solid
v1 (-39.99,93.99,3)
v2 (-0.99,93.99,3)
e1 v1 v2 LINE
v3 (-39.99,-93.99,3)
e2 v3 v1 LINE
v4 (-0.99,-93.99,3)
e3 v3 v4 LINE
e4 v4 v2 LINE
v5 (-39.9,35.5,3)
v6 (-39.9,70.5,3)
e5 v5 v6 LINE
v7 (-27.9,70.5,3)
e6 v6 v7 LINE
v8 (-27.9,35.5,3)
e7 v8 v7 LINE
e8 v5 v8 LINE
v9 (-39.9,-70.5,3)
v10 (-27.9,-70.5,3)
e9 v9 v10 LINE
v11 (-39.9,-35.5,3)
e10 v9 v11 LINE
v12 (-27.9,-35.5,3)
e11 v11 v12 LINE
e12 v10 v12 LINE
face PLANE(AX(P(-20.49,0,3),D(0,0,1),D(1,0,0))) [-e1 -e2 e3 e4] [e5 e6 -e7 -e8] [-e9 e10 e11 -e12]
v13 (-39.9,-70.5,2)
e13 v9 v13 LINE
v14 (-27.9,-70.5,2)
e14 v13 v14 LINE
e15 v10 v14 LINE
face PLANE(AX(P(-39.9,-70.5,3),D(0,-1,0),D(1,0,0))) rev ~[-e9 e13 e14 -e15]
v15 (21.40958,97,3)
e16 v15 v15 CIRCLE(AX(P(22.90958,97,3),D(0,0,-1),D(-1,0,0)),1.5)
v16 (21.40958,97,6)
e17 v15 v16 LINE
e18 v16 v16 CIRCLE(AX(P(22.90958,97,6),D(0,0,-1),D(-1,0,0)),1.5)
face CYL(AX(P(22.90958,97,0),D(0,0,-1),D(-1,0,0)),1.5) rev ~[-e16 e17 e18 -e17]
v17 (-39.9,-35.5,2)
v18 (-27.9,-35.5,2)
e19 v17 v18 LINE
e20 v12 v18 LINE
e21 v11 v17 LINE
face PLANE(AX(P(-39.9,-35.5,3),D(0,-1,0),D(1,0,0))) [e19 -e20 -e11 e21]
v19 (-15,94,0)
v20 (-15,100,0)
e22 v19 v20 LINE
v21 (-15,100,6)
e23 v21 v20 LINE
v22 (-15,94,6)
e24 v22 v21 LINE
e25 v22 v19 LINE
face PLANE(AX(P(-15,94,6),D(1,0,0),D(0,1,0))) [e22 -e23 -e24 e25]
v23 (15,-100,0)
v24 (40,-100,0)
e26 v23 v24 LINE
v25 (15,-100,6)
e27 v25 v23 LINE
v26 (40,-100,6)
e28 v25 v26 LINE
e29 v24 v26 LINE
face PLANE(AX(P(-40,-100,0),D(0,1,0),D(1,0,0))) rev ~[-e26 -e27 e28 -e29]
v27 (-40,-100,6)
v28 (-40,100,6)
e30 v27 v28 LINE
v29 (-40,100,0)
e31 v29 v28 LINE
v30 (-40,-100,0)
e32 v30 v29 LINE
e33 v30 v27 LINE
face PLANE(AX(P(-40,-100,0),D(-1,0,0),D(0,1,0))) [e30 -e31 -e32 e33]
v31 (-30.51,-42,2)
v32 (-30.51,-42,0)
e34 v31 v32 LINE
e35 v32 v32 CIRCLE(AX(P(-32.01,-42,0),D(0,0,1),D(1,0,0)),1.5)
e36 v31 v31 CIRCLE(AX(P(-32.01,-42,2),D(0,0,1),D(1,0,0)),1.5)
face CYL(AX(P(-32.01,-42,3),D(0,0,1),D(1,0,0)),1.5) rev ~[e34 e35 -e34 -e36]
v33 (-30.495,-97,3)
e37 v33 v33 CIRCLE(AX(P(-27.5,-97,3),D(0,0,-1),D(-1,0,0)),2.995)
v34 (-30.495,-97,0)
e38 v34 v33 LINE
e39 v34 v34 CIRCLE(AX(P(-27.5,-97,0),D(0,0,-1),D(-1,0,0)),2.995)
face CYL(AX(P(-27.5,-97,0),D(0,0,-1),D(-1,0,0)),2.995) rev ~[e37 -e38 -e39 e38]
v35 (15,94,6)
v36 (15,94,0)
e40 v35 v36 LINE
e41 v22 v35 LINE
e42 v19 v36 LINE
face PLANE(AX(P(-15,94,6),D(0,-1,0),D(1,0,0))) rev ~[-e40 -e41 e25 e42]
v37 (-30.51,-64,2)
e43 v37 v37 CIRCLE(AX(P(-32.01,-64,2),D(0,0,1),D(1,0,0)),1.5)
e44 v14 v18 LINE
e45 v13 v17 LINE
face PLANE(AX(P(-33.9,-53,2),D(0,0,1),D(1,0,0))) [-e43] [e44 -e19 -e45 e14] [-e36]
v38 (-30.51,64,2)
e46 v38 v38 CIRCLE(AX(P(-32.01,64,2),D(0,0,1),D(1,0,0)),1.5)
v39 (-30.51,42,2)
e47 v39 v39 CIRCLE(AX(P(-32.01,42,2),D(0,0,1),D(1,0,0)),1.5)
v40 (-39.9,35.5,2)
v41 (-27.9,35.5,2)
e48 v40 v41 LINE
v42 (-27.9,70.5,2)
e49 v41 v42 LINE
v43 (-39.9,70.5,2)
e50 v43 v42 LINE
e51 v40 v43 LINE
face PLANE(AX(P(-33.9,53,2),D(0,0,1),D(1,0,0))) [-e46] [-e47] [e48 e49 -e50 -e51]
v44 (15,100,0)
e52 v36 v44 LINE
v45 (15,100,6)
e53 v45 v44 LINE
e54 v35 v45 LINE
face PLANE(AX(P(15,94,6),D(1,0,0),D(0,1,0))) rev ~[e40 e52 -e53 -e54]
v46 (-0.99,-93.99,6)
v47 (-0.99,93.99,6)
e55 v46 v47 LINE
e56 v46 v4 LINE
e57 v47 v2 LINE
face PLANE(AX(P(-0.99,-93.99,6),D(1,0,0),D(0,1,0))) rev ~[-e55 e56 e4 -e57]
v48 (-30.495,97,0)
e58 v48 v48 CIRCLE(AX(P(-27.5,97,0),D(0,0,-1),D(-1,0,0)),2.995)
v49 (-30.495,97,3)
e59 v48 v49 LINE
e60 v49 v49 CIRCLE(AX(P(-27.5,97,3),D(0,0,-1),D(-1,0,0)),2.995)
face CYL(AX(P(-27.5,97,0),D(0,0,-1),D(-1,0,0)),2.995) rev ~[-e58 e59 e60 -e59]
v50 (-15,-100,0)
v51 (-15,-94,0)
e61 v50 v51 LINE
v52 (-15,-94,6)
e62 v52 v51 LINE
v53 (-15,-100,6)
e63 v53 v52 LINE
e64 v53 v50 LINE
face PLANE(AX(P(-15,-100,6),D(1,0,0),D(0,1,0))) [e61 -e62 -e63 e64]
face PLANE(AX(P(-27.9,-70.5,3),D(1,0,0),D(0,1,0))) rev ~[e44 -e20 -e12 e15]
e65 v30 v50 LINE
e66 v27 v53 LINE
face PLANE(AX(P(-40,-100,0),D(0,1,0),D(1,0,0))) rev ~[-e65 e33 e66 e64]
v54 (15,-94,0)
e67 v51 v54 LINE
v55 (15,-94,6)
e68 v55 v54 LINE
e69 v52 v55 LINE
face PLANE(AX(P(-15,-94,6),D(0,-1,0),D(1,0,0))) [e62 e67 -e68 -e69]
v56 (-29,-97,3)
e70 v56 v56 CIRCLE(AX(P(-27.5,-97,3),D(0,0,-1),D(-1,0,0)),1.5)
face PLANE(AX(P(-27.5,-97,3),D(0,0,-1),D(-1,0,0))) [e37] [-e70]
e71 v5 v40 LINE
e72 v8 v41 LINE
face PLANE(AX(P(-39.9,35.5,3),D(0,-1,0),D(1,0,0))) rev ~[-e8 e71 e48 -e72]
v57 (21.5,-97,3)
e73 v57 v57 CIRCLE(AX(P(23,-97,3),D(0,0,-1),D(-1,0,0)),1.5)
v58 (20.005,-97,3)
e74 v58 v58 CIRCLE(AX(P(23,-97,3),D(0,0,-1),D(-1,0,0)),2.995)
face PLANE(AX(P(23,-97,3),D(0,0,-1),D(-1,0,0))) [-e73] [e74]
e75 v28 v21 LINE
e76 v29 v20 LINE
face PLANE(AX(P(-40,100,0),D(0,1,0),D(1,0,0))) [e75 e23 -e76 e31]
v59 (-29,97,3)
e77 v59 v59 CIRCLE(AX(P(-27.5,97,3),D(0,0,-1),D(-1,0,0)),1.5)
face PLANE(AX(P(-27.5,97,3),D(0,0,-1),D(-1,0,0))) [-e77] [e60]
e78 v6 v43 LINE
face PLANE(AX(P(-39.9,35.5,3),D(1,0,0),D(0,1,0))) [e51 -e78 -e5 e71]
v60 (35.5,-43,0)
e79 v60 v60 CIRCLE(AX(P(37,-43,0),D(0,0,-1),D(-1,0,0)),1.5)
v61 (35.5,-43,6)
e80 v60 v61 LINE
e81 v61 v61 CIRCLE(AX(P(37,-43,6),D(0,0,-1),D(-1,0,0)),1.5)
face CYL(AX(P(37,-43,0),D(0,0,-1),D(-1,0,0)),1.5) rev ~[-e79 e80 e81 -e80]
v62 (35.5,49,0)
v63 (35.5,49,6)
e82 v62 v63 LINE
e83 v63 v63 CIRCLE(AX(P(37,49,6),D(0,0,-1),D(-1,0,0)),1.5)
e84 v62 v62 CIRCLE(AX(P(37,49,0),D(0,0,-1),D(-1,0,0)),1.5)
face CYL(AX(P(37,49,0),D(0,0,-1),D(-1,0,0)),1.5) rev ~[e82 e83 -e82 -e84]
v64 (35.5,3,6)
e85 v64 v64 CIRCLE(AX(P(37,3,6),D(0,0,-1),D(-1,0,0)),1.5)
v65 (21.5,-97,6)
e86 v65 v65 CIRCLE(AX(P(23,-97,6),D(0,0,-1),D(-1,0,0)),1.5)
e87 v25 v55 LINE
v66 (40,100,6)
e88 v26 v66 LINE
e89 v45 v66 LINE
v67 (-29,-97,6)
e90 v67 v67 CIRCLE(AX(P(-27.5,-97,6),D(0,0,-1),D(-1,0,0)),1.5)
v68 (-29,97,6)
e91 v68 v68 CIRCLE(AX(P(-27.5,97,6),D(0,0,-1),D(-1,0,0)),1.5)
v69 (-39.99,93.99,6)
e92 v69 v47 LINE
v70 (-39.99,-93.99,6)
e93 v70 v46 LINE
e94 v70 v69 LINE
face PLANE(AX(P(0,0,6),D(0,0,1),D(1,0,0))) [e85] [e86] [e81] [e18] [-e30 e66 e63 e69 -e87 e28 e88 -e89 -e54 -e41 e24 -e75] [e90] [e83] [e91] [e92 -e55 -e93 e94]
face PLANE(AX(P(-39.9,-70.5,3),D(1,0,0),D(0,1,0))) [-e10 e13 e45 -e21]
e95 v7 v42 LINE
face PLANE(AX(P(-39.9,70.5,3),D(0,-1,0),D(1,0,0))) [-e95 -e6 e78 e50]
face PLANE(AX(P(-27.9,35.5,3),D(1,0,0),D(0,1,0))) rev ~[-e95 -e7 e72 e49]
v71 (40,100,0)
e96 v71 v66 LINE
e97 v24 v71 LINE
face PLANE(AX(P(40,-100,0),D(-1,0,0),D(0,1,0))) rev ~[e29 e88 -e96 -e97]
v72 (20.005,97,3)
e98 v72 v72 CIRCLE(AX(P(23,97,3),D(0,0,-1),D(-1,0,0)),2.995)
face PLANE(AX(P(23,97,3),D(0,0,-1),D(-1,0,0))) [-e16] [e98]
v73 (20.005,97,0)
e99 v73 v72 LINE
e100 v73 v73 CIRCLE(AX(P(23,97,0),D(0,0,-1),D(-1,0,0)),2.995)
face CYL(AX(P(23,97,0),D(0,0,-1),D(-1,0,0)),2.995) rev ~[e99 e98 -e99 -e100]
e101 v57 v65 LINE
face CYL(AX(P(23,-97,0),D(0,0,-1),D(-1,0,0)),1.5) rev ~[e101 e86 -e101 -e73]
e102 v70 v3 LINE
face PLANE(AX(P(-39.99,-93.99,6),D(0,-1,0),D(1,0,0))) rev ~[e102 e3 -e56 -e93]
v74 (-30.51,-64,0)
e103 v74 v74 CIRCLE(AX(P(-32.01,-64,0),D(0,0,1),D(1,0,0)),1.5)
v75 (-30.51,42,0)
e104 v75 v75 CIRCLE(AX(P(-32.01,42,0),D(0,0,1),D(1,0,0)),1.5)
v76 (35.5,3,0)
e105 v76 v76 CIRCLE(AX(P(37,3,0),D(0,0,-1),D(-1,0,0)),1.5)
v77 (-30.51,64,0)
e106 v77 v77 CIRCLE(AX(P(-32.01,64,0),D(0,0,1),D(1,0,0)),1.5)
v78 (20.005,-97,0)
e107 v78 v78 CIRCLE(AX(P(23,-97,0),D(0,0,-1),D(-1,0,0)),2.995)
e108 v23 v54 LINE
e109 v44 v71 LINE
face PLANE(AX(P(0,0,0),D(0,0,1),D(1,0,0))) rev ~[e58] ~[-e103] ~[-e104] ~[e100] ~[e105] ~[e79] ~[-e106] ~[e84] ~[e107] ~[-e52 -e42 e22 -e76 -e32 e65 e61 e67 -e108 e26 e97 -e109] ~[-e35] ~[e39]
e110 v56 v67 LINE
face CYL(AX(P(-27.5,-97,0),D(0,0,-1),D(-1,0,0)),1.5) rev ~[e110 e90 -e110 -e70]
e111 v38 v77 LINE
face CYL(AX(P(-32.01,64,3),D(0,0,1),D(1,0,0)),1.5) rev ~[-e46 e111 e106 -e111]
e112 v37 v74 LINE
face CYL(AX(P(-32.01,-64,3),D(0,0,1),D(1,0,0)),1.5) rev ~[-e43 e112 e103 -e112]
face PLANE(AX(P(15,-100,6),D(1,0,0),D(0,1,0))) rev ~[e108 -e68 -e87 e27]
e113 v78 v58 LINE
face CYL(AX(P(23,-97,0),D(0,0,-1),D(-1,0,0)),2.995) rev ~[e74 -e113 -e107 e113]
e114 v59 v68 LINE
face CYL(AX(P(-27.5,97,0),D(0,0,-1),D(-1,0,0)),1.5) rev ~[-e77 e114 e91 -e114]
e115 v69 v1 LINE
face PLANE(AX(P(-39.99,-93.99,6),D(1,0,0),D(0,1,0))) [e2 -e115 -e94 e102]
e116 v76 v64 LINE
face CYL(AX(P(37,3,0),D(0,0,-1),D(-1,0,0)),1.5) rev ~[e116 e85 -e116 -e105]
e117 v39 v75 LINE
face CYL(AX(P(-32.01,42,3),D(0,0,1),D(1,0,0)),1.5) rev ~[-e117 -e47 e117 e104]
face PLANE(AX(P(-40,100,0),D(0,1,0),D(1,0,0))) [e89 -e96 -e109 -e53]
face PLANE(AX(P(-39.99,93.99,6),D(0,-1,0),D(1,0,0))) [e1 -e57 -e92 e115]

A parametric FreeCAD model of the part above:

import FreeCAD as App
import Part
import Sketcher
Q = App.Units.Quantity


def add_polygon(sketch, points):
    """Adds a closed chain of lines whose ends are joined by coincident constraints."""
    first, n = sketch.GeometryCount, len(points)
    for a, b in zip(points, points[1:] + points[:1]):
        sketch.addGeometry(Part.LineSegment(App.Vector(*a, 0), App.Vector(*b, 0)), False)
    for i in range(n):
        sketch.addConstraint(Sketcher.Constraint("Coincident", first + i, 2, first + (i + 1) % n, 1))

doc = App.newDocument("Part")
params = doc.addObject("Spreadsheet::Sheet", "Params")
for row, (alias, value) in enumerate([
    ("sketch1_width", "80 mm"),
    ("sketch1_height", "200 mm"),
    ("pad1_length", "6 mm"),
    ("sketch2_width", "39 mm"),
    ("sketch2_height", "187.98 mm"),
    ("pocket1_length", "3 mm"),
    ("sketch3_width", "30 mm"),
    ("sketch3_height", "6 mm"),
    ("pocket2_length", "10 mm"),
    ("sketch4_diameter", "5.99 mm"),
    ("pocket3_length", "3 mm"),
    ("sketch5_diameter", "3 mm"),
    ("pocket4_length", "13 mm"),
    ("sketch6_diameter", "3 mm"),
    ("pocket5_length", "10 mm"),
    ("sketch7_diameter", "3 mm"),
    ("pocket6_length", "10 mm"),
    ("sketch8_width", "12 mm"),
    ("sketch8_height", "35 mm"),
    ("pocket7_length", "1 mm"),
], start=1):
    params.set(f"A{row}", alias)
    params.set(f"B{row}", "=" + value)
    params.setAlias(f"B{row}", alias)

body = doc.addObject("PartDesign::Body", "Body")

# Sketch on XY plane
sketch1 = doc.addObject("Sketcher::SketchObject", "Sketch")
body.addObject(sketch1)
sketch1.AttachmentSupport = (doc.XY_Plane, [""])
sketch1.MapMode = "FlatFace"
add_polygon(sketch1, [(-40, 100), (-40, -100), (40, -100), (40, 100)])  # lines 0-3
sketch1.addConstraint([
    Sketcher.Constraint("Vertical", 0),
    Sketcher.Constraint("Horizontal", 1),
    Sketcher.Constraint("Vertical", 2),
    Sketcher.Constraint("Horizontal", 3),
    Sketcher.Constraint("Symmetric", 0, 2, 2, 2, -1, 1),
    Sketcher.Constraint("DistanceX", 1, 1, 1, 2, Q("80 mm")),
    Sketcher.Constraint("DistanceY", 0, 2, 0, 1, Q("200 mm")),
])
sketch1.setExpression("Constraints[9]", "Params.sketch1_width")
sketch1.setExpression("Constraints[10]", "Params.sketch1_height")
pad1 = doc.addObject("PartDesign::Pad", "Pad")
body.addObject(pad1)
pad1.Profile = sketch1
pad1.setExpression("Length", "Params.pad1_length")

# Sketch on XY plane
sketch2 = doc.addObject("Sketcher::SketchObject", "Sketch001")
body.addObject(sketch2)
sketch2.AttachmentSupport = (doc.XY_Plane, [""])
sketch2.MapMode = "FlatFace"
sketch2.AttachmentOffset = App.Placement(App.Vector(0, 0, 6), App.Rotation())
add_polygon(sketch2, [(-40, 94), (-40, -94), (-1, -94), (-1, 94)])  # lines 0-3
sketch2.addConstraint([
    Sketcher.Constraint("Vertical", 0),
    Sketcher.Constraint("Horizontal", 1),
    Sketcher.Constraint("Vertical", 2),
    Sketcher.Constraint("Horizontal", 3),
    Sketcher.Constraint("DistanceX", 1, 1, 1, 2, Q("39 mm")),
    Sketcher.Constraint("DistanceY", 0, 2, 0, 1, Q("187.98 mm")),
    Sketcher.Constraint("DistanceX", 0, 2, -1, 1, Q("39.99 mm")),
    Sketcher.Constraint("DistanceY", 0, 2, -1, 1, Q("93.99 mm")),
])
sketch2.setExpression("Constraints[8]", "Params.sketch2_width")
sketch2.setExpression("Constraints[9]", "Params.sketch2_height")
pocket1 = doc.addObject("PartDesign::Pocket", "Pocket")
body.addObject(pocket1)
pocket1.Profile = sketch2
pocket1.setExpression("Length", "Params.pocket1_length")

# Sketch on XY plane
sketch3 = doc.addObject("Sketcher::SketchObject", "Sketch002")
body.addObject(sketch3)
sketch3.AttachmentSupport = (doc.XY_Plane, [""])
sketch3.MapMode = "FlatFace"
sketch3.AttachmentOffset = App.Placement(App.Vector(0, 0, 6), App.Rotation())
add_polygon(sketch3, [(-15, 100), (-15, 94), (15, 94), (15, 100)])  # lines 0-3
add_polygon(sketch3, [(-15, -94), (-15, -100), (15, -100), (15, -94)])  # lines 4-7
sketch3.addConstraint([
    Sketcher.Constraint("Vertical", 0),
    Sketcher.Constraint("Horizontal", 1),
    Sketcher.Constraint("Vertical", 2),
    Sketcher.Constraint("Horizontal", 3),
    Sketcher.Constraint("Vertical", 4),
    Sketcher.Constraint("Horizontal", 5),
    Sketcher.Constraint("Vertical", 6),
    Sketcher.Constraint("Horizontal", 7),
    Sketcher.Constraint("Symmetric", 2, 2, 4, 2, -1, 1),
    Sketcher.Constraint("Symmetric", 0, 2, 6, 2, -1, 1),
    Sketcher.Constraint("Vertical", 3, 2, 4, 2),
    Sketcher.Constraint("DistanceX", 1, 1, 1, 2, Q("30 mm")),
    Sketcher.Constraint("DistanceY", 0, 2, 0, 1, Q("6 mm")),
    Sketcher.Constraint("DistanceY", -1, 1, 0, 2, Q("94 mm")),
])
sketch3.setExpression("Constraints[19]", "Params.sketch3_width")
sketch3.setExpression("Constraints[20]", "Params.sketch3_height")
pocket2 = doc.addObject("PartDesign::Pocket", "Pocket001")
body.addObject(pocket2)
pocket2.Profile = sketch3
pocket2.setExpression("Length", "Params.pocket2_length")

# Sketch on XY plane
sketch4 = doc.addObject("Sketcher::SketchObject", "Sketch003")
body.addObject(sketch4)
sketch4.AttachmentSupport = (doc.XY_Plane, [""])
sketch4.MapMode = "FlatFace"
sketch4.addGeometry([
    Part.Circle(App.Vector(-27.5, -97, 0), App.Vector(0, 0, 1), 3),
    Part.Circle(App.Vector(23, -97, 0), App.Vector(0, 0, 1), 3),
    Part.Circle(App.Vector(-27.5, 97, 0), App.Vector(0, 0, 1), 3),
    Part.Circle(App.Vector(23, 97, 0), App.Vector(0, 0, 1), 3),
], False)
sketch4.addConstraint([
    Sketcher.Constraint("Equal", 0, 1),
    Sketcher.Constraint("Equal", 1, 2),
    Sketcher.Constraint("Equal", 2, 3),
    Sketcher.Constraint("Symmetric", 0, 3, 2, 3, -1),
    Sketcher.Constraint("Symmetric", 1, 3, 3, 3, -1),
    Sketcher.Constraint("Horizontal", 0, 3, 1, 3),
    Sketcher.Constraint("Diameter", 0, Q("5.99 mm")),
    Sketcher.Constraint("DistanceY", 0, 3, -1, 1, Q("97 mm")),
    Sketcher.Constraint("DistanceX", -1, 1, 1, 3, Q("23 mm")),
    Sketcher.Constraint("DistanceX", 0, 3, -1, 1, Q("27.5 mm")),
])
sketch4.setExpression("Constraints[6]", "Params.sketch4_diameter")
pocket3 = doc.addObject("PartDesign::Pocket", "Pocket002")
body.addObject(pocket3)
pocket3.Profile = sketch4
pocket3.setExpression("Length", "Params.pocket3_length")
pocket3.Reversed = True

# Sketch on XY plane
sketch5 = doc.addObject("Sketcher::SketchObject", "Sketch004")
body.addObject(sketch5)
sketch5.AttachmentSupport = (doc.XY_Plane, [""])
sketch5.MapMode = "FlatFace"
sketch5.addGeometry([
    Part.Circle(App.Vector(-27.5, 97, 0), App.Vector(0, 0, 1), 1.5),
    Part.Circle(App.Vector(22.9, 97, 0), App.Vector(0, 0, 1), 1.5),
    Part.Circle(App.Vector(-27.5, -97, 0), App.Vector(0, 0, 1), 1.5),
    Part.Circle(App.Vector(23, -97, 0), App.Vector(0, 0, 1), 1.5),
], False)
sketch5.addConstraint([
    Sketcher.Constraint("Equal", 0, 1),
    Sketcher.Constraint("Equal", 1, 2),
    Sketcher.Constraint("Equal", 2, 3),
    Sketcher.Constraint("Symmetric", 0, 3, 2, 3, -1),
    Sketcher.Constraint("Horizontal", 0, 3, 1, 3),
    Sketcher.Constraint("Horizontal", 2, 3, 3, 3),
    Sketcher.Constraint("Diameter", 0, Q("3 mm")),
    Sketcher.Constraint("DistanceY", -1, 1, 0, 3, Q("97 mm")),
    Sketcher.Constraint("DistanceX", -1, 1, 3, 3, Q("23 mm")),
    Sketcher.Constraint("DistanceX", 0, 3, -1, 1, Q("27.5 mm")),
    Sketcher.Constraint("DistanceX", -1, 1, 1, 3, Q("22.90958 mm")),
])
sketch5.setExpression("Constraints[6]", "Params.sketch5_diameter")
pocket4 = doc.addObject("PartDesign::Pocket", "Pocket003")
body.addObject(pocket4)
pocket4.Profile = sketch5
pocket4.setExpression("Length", "Params.pocket4_length")
pocket4.Reversed = True

# Sketch on XY plane
sketch6 = doc.addObject("Sketcher::SketchObject", "Sketch005")
body.addObject(sketch6)
sketch6.AttachmentSupport = (doc.XY_Plane, [""])
sketch6.MapMode = "FlatFace"
sketch6.AttachmentOffset = App.Placement(App.Vector(0, 0, 3), App.Rotation())
sketch6.addGeometry([
    Part.Circle(App.Vector(-32, 64, 0), App.Vector(0, 0, 1), 1.5),
    Part.Circle(App.Vector(-32, 42, 0), App.Vector(0, 0, 1), 1.5),
    Part.Circle(App.Vector(-32, -42, 0), App.Vector(0, 0, 1), 1.5),
    Part.Circle(App.Vector(-32, -64, 0), App.Vector(0, 0, 1), 1.5),
], False)
sketch6.addConstraint([
    Sketcher.Constraint("Equal", 0, 1),
    Sketcher.Constraint("Equal", 1, 2),
    Sketcher.Constraint("Equal", 2, 3),
    Sketcher.Constraint("Symmetric", 1, 3, 2, 3, -1),
    Sketcher.Constraint("Symmetric", 0, 3, 3, 3, -1),
    Sketcher.Constraint("Vertical", 0, 3, 1, 3),
    Sketcher.Constraint("Diameter", 0, Q("3 mm")),
    Sketcher.Constraint("DistanceY", -1, 1, 0, 3, Q("64 mm")),
    Sketcher.Constraint("DistanceY", -1, 1, 1, 3, Q("42 mm")),
    Sketcher.Constraint("DistanceX", 0, 3, -1, 1, Q("32.01 mm")),
])
sketch6.setExpression("Constraints[6]", "Params.sketch6_diameter")
pocket5 = doc.addObject("PartDesign::Pocket", "Pocket004")
body.addObject(pocket5)
pocket5.Profile = sketch6
pocket5.setExpression("Length", "Params.pocket5_length")

# Sketch on XY plane
sketch7 = doc.addObject("Sketcher::SketchObject", "Sketch006")
body.addObject(sketch7)
sketch7.AttachmentSupport = (doc.XY_Plane, [""])
sketch7.MapMode = "FlatFace"
sketch7.addGeometry([
    Part.Circle(App.Vector(37, -43, 0), App.Vector(0, 0, 1), 1.5),
    Part.Circle(App.Vector(37, 3, 0), App.Vector(0, 0, 1), 1.5),
    Part.Circle(App.Vector(37, 49, 0), App.Vector(0, 0, 1), 1.5),
], False)
sketch7.addConstraint([
    Sketcher.Constraint("Equal", 0, 1),
    Sketcher.Constraint("Equal", 1, 2),
    Sketcher.Constraint("Vertical", 0, 3, 1, 3),
    Sketcher.Constraint("Vertical", 1, 3, 2, 3),
    Sketcher.Constraint("Diameter", 0, Q("3 mm")),
    Sketcher.Constraint("DistanceX", -1, 1, 0, 3, Q("37 mm")),
    Sketcher.Constraint("DistanceY", 0, 3, -1, 1, Q("43 mm")),
    Sketcher.Constraint("DistanceY", -1, 1, 1, 3, Q("3 mm")),
    Sketcher.Constraint("DistanceY", -1, 1, 2, 3, Q("49 mm")),
])
sketch7.setExpression("Constraints[4]", "Params.sketch7_diameter")
pocket6 = doc.addObject("PartDesign::Pocket", "Pocket005")
body.addObject(pocket6)
pocket6.Profile = sketch7
pocket6.setExpression("Length", "Params.pocket6_length")
pocket6.Reversed = True

# Sketch on XY plane
sketch8 = doc.addObject("Sketcher::SketchObject", "Sketch007")
body.addObject(sketch8)
sketch8.AttachmentSupport = (doc.XY_Plane, [""])
sketch8.MapMode = "FlatFace"
sketch8.AttachmentOffset = App.Placement(App.Vector(0, 0, 3), App.Rotation())
add_polygon(sketch8, [(-40, 70), (-40, 36), (-28, 36), (-28, 70)])  # lines 0-3
add_polygon(sketch8, [(-40, -36), (-40, -70), (-28, -70), (-28, -36)])  # lines 4-7
sketch8.addConstraint([
    Sketcher.Constraint("Vertical", 0),
    Sketcher.Constraint("Horizontal", 1),
    Sketcher.Constraint("Vertical", 2),
    Sketcher.Constraint("Horizontal", 3),
    Sketcher.Constraint("Vertical", 4),
    Sketcher.Constraint("Horizontal", 5),
    Sketcher.Constraint("Vertical", 6),
    Sketcher.Constraint("Horizontal", 7),
    Sketcher.Constraint("Symmetric", 3, 2, 4, 2, -1),
    Sketcher.Constraint("Symmetric", 1, 2, 6, 2, -1),
    Sketcher.Constraint("DistanceX", 1, 1, 1, 2, Q("12 mm")),
    Sketcher.Constraint("DistanceY", 0, 2, 0, 1, Q("35 mm")),
    Sketcher.Constraint("DistanceY", 4, 2, 0, 2, Q("106 mm")),
    Sketcher.Constraint("DistanceX", 0, 2, -1, 1, Q("39.9 mm")),
])
sketch8.setExpression("Constraints[18]", "Params.sketch8_width")
sketch8.setExpression("Constraints[19]", "Params.sketch8_height")
pocket7 = doc.addObject("PartDesign::Pocket", "Pocket006")
body.addObject(pocket7)
pocket7.Profile = sketch8
pocket7.setExpression("Length", "Params.pocket7_length")

doc.recompute()
